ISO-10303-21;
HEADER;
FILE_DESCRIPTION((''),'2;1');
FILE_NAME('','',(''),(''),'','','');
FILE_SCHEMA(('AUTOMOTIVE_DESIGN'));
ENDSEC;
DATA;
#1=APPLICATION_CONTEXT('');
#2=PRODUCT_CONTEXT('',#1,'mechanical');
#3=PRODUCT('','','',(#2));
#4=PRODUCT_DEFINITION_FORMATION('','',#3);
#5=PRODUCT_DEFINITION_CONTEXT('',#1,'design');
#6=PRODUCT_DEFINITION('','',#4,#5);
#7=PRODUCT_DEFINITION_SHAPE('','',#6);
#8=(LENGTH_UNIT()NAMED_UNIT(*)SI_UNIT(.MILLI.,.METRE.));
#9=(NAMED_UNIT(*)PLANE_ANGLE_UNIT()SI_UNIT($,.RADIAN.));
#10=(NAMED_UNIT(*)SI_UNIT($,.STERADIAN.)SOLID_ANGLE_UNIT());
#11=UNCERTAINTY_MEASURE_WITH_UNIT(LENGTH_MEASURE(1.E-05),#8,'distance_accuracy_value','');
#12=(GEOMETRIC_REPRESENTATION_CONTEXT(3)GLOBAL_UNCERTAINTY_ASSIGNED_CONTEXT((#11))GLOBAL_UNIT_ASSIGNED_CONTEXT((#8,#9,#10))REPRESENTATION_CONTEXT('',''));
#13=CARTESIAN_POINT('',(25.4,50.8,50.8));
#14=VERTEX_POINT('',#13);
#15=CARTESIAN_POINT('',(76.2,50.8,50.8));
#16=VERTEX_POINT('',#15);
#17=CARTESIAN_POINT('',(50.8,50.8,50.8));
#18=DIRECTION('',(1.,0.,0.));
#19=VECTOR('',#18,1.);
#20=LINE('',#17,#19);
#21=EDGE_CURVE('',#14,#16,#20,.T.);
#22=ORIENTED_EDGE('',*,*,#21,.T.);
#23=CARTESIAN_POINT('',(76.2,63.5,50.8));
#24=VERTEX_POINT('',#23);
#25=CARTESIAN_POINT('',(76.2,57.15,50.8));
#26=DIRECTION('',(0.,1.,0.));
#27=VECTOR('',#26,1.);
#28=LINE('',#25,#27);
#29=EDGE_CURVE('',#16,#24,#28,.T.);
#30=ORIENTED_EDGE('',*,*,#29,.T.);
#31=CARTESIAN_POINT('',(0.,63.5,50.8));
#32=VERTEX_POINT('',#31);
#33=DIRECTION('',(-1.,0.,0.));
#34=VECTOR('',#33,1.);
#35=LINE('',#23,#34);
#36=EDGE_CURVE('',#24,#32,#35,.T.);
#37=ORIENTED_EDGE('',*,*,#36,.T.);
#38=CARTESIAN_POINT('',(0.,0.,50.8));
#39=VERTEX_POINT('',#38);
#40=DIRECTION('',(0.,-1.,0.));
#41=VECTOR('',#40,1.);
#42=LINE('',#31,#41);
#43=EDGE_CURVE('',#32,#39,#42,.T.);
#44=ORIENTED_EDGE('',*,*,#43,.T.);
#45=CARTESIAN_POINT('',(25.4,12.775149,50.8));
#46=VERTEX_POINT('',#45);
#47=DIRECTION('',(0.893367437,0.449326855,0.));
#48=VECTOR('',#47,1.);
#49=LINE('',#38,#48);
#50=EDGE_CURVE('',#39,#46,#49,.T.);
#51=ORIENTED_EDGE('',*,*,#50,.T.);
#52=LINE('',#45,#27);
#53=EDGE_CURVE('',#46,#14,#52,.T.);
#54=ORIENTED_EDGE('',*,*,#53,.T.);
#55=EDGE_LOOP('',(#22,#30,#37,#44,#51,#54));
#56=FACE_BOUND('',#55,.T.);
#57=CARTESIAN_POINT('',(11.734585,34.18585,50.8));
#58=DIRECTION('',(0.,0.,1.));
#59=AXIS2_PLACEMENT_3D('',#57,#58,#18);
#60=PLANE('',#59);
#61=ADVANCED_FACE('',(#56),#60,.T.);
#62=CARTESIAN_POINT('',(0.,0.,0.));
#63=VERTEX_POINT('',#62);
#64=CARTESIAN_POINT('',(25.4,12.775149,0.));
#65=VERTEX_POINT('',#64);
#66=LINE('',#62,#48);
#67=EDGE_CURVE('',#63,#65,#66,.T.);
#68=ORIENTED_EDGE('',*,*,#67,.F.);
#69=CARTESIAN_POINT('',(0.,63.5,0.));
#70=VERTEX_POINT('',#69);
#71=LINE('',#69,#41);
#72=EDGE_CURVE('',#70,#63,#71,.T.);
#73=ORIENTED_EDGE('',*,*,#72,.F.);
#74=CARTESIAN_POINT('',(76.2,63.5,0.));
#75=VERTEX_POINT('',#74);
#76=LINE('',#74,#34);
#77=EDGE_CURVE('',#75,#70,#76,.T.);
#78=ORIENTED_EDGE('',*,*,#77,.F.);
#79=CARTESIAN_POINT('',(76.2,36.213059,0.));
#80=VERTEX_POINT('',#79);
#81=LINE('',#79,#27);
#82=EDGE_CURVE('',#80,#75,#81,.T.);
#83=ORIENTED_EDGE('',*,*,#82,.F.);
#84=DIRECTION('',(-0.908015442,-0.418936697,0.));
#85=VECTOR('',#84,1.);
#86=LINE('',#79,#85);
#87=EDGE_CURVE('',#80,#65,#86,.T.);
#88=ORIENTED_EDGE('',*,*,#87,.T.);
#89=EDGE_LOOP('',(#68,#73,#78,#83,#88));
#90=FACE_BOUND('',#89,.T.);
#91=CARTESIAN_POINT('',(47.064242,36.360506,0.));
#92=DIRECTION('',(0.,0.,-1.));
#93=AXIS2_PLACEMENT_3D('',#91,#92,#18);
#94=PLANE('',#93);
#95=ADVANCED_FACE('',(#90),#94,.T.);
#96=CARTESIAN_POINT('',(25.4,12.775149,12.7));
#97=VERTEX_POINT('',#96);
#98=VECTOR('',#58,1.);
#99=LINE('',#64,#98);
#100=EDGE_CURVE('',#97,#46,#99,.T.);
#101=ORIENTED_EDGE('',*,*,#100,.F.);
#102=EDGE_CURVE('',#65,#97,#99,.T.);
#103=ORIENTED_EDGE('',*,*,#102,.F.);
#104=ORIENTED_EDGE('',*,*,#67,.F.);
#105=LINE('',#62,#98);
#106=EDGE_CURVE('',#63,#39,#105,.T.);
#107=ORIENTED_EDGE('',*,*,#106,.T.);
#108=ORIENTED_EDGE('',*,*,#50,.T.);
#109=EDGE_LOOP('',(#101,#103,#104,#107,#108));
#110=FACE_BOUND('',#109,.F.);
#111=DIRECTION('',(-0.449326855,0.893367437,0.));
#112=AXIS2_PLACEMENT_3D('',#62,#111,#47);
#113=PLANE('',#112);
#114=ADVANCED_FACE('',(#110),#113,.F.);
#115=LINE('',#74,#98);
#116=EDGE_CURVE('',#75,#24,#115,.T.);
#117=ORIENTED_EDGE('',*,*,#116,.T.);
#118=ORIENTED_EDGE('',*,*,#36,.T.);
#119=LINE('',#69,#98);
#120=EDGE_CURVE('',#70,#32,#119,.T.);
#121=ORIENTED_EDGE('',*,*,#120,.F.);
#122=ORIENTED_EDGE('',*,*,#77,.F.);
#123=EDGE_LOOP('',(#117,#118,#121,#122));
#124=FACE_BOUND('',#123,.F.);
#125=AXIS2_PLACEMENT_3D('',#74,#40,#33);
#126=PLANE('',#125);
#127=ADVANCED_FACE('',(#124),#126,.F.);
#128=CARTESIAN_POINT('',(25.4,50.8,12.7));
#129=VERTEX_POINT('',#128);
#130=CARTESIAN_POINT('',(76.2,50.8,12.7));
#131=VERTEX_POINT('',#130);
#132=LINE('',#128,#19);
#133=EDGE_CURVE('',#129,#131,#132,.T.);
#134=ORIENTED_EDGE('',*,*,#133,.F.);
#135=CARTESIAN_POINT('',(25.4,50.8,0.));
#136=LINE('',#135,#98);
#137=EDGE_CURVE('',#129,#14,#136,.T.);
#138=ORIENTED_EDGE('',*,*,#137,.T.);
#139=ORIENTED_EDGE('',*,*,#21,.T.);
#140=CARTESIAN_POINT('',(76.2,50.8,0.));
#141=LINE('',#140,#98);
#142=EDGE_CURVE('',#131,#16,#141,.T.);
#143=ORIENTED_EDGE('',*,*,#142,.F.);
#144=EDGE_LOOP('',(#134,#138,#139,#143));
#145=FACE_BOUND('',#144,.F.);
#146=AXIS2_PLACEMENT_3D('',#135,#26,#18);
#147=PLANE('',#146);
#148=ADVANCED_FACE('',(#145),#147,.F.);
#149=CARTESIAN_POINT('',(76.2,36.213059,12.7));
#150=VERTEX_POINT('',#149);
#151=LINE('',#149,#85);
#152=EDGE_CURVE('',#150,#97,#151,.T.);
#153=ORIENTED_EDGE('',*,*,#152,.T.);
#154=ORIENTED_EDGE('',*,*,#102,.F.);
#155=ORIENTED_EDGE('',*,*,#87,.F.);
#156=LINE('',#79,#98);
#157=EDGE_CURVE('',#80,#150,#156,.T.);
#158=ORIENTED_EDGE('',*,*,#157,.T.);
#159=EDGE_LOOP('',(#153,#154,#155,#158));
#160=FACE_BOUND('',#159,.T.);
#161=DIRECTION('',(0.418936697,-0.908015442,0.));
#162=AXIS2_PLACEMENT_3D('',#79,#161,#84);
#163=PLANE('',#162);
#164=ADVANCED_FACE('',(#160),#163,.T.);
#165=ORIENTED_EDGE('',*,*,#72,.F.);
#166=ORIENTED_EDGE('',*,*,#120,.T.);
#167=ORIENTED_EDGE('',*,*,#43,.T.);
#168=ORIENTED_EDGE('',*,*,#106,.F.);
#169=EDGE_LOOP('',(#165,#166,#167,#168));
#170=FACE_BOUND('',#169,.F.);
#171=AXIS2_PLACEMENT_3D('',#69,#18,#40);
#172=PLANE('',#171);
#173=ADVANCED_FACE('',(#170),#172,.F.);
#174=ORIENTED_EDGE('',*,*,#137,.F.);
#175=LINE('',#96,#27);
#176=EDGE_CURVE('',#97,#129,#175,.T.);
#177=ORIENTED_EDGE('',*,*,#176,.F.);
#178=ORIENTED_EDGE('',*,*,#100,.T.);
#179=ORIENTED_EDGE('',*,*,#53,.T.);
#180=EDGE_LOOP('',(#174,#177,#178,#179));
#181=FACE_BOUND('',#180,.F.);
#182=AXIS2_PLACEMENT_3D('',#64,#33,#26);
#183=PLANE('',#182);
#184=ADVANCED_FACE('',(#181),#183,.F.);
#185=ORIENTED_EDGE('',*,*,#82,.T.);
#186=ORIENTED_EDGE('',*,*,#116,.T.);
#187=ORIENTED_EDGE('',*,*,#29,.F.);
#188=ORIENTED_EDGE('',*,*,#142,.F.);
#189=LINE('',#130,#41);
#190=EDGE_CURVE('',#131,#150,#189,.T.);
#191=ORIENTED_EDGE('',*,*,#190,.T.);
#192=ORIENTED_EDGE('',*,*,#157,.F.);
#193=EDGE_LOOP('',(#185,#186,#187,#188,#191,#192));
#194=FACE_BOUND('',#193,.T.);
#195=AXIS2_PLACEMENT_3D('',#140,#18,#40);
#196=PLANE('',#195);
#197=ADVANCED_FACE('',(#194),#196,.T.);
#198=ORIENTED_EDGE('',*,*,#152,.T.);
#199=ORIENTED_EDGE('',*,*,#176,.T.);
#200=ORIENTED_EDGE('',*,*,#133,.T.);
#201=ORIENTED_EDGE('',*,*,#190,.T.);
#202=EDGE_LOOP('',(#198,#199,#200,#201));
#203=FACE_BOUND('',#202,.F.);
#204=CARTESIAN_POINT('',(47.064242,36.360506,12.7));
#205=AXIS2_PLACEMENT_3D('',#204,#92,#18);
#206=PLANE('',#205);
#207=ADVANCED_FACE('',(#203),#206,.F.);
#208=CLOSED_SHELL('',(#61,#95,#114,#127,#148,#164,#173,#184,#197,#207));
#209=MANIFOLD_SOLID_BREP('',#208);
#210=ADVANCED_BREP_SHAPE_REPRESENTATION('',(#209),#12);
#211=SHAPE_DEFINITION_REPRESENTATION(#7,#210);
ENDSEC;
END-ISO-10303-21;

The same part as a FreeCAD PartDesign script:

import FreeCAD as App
import Part
import Sketcher
Q = App.Units.Quantity

doc = App.newDocument("Part")
body = doc.addObject("PartDesign::Body", "Body")

# Sketch on XY plane
sketch1 = doc.addObject("Sketcher::SketchObject", "Sketch")
body.addObject(sketch1)
sketch1.AttachmentSupport = (doc.XY_Plane, [""])
sketch1.MapMode = "FlatFace"
sketch1.addGeometry(Part.LineSegment(App.Vector(0, 63.5, 0), App.Vector(0, 0, 0)), False)
sketch1.addGeometry(Part.LineSegment(App.Vector(0, 0, 0), App.Vector(25.4, 12.775149, 0)), False)
sketch1.addGeometry(Part.LineSegment(App.Vector(25.4, 12.775149, 0), App.Vector(25.4, 50.8, 0)), False)
sketch1.addGeometry(Part.LineSegment(App.Vector(25.4, 50.8, 0), App.Vector(76.2, 50.8, 0)), False)
sketch1.addGeometry(Part.LineSegment(App.Vector(76.2, 50.8, 0), App.Vector(76.2, 63.5, 0)), False)
sketch1.addGeometry(Part.LineSegment(App.Vector(76.2, 63.5, 0), App.Vector(0, 63.5, 0)), False)
sketch1.addConstraint(Sketcher.Constraint("Coincident", 0, 2, 1, 1))
sketch1.addConstraint(Sketcher.Constraint("Coincident", 1, 2, 2, 1))
sketch1.addConstraint(Sketcher.Constraint("Coincident", 2, 2, 3, 1))
sketch1.addConstraint(Sketcher.Constraint("Coincident", 3, 2, 4, 1))
sketch1.addConstraint(Sketcher.Constraint("Coincident", 4, 2, 5, 1))
sketch1.addConstraint(Sketcher.Constraint("Coincident", 5, 2, 0, 1))
sketch1.addConstraint(Sketcher.Constraint("Vertical", 0))
sketch1.addConstraint(Sketcher.Constraint("Vertical", 2))
sketch1.addConstraint(Sketcher.Constraint("Horizontal", 3))
sketch1.addConstraint(Sketcher.Constraint("Vertical", 4))
sketch1.addConstraint(Sketcher.Constraint("Horizontal", 5))
sketch1.addConstraint(Sketcher.Constraint("Coincident", 0, 2, -1, 1))
sketch1.addConstraint(Sketcher.Constraint("DistanceX", 3, 1, 3, 2, Q("2 in")))
sketch1.addConstraint(Sketcher.Constraint("DistanceX", 5, 2, 5, 1, Q("3 in")))
sketch1.addConstraint(Sketcher.Constraint("DistanceY", 0, 2, 0, 1, Q("2.5 in")))
sketch1.addConstraint(Sketcher.Constraint("DistanceY", 4, 1, 4, 2, Q("0.5 in")))
sketch1.addConstraint(Sketcher.Constraint("DistanceY", 2, 1, 2, 2, Q("38.024851 mm")))
pad1 = doc.addObject("PartDesign::Pad", "Pad")
body.addObject(pad1)
pad1.Profile = sketch1
pad1.Length = Q("2 in")

# Sketch on XY plane
sketch2 = doc.addObject("Sketcher::SketchObject", "Sketch001")
body.addObject(sketch2)
sketch2.AttachmentSupport = (doc.XY_Plane, [""])
sketch2.MapMode = "FlatFace"
sketch2.addGeometry(Part.LineSegment(App.Vector(76.2, 36.213059, 0), App.Vector(25.4, 12.775149, 0)), False)
sketch2.addGeometry(Part.LineSegment(App.Vector(25.4, 12.775149, 0), App.Vector(25.4, 50.8, 0)), False)
sketch2.addGeometry(Part.LineSegment(App.Vector(25.4, 50.8, 0), App.Vector(76.2, 50.8, 0)), False)
sketch2.addGeometry(Part.LineSegment(App.Vector(76.2, 50.8, 0), App.Vector(76.2, 36.213059, 0)), False)
sketch2.addConstraint(Sketcher.Constraint("Coincident", 0, 2, 1, 1))
sketch2.addConstraint(Sketcher.Constraint("Coincident", 1, 2, 2, 1))
sketch2.addConstraint(Sketcher.Constraint("Coincident", 2, 2, 3, 1))
sketch2.addConstraint(Sketcher.Constraint("Coincident", 3, 2, 0, 1))
sketch2.addConstraint(Sketcher.Constraint("Vertical", 1))
sketch2.addConstraint(Sketcher.Constraint("Horizontal", 2))
sketch2.addConstraint(Sketcher.Constraint("Vertical", 3))
sketch2.addConstraint(Sketcher.Constraint("DistanceX", 2, 1, 2, 2, Q("2 in")))
sketch2.addConstraint(Sketcher.Constraint("DistanceX", -1, 1, 0, 2, Q("1 in")))
sketch2.addConstraint(Sketcher.Constraint("DistanceY", -1, 1, 1, 2, Q("2 in")))
sketch2.addConstraint(Sketcher.Constraint("DistanceY", 1, 1, 1, 2, Q("38.024851 mm")))
sketch2.addConstraint(Sketcher.Constraint("DistanceY", 3, 2, 3, 1, Q("14.586941 mm")))
pad2 = doc.addObject("PartDesign::Pad", "Pad001")
body.addObject(pad2)
pad2.Profile = sketch2
pad2.Length = Q("0.5 in")

doc.recompute()
